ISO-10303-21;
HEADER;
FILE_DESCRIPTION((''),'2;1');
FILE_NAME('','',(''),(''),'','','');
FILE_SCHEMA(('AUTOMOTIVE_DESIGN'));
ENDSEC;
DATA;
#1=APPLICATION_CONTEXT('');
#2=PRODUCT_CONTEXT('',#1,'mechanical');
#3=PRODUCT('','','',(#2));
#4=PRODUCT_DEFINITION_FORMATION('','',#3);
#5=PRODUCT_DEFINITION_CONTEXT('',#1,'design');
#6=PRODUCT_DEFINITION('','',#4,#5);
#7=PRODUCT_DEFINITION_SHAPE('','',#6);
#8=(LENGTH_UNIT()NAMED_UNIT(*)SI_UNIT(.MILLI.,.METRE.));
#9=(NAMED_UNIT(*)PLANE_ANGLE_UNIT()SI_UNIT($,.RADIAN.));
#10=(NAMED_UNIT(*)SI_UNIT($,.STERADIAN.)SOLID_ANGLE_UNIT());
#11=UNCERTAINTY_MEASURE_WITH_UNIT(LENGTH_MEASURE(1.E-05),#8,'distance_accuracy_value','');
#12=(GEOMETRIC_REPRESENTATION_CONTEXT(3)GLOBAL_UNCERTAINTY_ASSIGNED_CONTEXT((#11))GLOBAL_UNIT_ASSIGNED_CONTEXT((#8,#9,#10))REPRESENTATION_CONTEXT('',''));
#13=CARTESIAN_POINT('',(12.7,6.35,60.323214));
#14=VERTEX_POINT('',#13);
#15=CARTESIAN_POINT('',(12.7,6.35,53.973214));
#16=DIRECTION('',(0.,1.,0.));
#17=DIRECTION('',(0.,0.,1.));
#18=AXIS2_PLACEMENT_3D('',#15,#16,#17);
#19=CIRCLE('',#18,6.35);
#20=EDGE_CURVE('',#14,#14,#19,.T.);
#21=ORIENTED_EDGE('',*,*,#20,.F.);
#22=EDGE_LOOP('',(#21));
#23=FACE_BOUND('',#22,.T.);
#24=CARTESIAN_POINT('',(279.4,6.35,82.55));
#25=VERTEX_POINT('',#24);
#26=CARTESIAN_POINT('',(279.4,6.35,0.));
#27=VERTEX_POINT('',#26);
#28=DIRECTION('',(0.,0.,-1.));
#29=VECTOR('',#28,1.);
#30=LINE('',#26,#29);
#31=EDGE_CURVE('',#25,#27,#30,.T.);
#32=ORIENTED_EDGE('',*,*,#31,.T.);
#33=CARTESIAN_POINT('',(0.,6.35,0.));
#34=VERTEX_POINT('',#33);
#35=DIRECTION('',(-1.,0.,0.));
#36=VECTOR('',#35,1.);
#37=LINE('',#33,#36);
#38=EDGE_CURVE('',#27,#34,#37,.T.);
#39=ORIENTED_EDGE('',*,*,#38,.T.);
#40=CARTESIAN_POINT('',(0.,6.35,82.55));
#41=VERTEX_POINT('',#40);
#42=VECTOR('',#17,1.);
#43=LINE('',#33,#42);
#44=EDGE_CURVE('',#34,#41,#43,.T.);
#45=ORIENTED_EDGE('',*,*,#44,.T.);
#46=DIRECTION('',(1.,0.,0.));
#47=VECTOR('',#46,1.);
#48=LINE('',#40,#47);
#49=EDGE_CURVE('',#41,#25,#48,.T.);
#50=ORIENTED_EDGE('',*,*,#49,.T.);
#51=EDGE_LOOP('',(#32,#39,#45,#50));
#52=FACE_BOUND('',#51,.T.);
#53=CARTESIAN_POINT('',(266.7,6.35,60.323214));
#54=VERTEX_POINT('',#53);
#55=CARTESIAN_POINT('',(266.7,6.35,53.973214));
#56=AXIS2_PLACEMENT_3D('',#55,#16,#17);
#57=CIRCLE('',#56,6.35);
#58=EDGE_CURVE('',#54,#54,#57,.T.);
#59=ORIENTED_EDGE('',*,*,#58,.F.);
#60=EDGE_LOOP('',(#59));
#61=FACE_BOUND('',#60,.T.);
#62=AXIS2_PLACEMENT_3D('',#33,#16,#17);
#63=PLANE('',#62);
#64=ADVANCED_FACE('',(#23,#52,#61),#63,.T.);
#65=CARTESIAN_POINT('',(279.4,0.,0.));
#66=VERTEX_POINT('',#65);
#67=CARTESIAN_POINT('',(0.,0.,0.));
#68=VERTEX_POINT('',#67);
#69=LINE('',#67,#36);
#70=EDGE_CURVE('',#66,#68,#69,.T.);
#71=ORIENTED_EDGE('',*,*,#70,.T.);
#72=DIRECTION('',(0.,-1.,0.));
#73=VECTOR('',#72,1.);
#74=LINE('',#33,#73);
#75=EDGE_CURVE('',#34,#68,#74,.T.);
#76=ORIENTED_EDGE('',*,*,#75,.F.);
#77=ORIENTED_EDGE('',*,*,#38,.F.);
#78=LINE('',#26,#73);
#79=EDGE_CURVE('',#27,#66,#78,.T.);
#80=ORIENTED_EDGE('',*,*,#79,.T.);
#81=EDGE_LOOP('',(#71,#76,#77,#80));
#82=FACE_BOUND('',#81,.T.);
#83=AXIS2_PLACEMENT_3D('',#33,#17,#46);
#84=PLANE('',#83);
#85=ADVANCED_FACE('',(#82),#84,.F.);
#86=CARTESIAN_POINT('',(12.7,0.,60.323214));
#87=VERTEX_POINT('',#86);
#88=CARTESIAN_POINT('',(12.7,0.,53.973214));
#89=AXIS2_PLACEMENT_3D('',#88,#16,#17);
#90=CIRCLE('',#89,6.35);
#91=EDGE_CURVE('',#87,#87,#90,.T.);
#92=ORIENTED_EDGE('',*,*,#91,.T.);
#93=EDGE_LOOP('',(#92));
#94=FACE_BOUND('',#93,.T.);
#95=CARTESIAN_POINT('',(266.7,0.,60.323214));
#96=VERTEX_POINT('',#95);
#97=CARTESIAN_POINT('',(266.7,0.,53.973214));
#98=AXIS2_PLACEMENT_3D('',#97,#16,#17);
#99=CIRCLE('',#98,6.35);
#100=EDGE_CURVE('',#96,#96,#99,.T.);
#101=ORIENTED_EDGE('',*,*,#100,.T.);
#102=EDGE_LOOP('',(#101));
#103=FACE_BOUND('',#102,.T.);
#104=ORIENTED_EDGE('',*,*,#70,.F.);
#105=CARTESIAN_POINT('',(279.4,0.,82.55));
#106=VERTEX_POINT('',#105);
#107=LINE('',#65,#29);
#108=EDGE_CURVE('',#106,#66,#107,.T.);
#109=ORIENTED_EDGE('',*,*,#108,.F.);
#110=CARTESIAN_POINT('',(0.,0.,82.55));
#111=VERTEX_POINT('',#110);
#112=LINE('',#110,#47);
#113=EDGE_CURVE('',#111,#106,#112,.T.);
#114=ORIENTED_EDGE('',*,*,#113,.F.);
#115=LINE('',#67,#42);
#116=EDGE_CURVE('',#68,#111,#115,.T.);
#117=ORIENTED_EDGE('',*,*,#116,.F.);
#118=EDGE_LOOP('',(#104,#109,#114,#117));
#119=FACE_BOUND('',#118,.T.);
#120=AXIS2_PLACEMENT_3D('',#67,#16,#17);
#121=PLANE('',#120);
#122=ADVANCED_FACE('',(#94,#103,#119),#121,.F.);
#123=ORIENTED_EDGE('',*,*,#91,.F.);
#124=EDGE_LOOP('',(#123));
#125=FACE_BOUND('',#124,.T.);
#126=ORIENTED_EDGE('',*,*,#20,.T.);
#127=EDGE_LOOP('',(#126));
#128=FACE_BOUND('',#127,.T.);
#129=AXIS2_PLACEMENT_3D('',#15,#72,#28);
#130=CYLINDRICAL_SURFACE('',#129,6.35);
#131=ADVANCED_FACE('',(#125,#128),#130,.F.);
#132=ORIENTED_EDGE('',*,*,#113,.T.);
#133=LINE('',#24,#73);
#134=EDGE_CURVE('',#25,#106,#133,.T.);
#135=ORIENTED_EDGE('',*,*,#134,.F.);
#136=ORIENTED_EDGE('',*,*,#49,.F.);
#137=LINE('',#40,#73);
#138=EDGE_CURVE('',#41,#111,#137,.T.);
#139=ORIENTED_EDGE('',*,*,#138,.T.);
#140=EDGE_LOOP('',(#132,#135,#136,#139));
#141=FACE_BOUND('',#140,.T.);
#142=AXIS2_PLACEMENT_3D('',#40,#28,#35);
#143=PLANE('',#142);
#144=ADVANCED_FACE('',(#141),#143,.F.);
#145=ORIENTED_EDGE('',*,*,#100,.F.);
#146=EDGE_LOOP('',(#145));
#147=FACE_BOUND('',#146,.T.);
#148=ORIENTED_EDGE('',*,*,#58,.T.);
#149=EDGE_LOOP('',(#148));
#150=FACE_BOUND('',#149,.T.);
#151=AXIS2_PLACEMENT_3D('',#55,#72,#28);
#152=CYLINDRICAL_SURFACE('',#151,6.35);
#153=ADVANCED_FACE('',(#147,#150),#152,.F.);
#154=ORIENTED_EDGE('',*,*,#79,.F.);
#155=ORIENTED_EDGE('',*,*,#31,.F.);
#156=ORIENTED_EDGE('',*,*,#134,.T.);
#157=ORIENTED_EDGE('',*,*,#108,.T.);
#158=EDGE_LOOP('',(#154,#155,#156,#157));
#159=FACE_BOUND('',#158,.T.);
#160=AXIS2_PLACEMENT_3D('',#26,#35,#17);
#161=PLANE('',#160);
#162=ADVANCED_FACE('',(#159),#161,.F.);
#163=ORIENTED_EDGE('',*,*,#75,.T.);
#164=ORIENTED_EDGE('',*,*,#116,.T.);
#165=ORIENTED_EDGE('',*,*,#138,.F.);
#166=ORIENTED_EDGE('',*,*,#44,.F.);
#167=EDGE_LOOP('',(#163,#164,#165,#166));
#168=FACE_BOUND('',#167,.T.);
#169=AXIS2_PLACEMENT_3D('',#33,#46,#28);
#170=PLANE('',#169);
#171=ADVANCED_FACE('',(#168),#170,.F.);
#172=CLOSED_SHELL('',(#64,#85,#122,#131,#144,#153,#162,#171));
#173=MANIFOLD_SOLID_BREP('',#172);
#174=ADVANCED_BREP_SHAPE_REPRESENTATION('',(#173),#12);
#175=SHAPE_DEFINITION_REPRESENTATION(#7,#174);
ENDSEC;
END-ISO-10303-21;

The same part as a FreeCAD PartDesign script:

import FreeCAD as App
import Part
import Sketcher
Q = App.Units.Quantity


def add_polygon(sketch, points):
    """Adds a closed chain of lines whose ends are joined by coincident constraints."""
    first, n = sketch.GeometryCount, len(points)
    for a, b in zip(points, points[1:] + points[:1]):
        sketch.addGeometry(Part.LineSegment(App.Vector(*a, 0), App.Vector(*b, 0)), False)
    for i in range(n):
        sketch.addConstraint(Sketcher.Constraint("Coincident", first + i, 2, first + (i + 1) % n, 1))

doc = App.newDocument("Part")
body = doc.addObject("PartDesign::Body", "Body")

# Sketch on XZ plane
sketch1 = body.newObject("Sketcher::SketchObject", "Sketch")
sketch1.AttachmentSupport = (doc.getObject("XZ_Plane"), [""])
sketch1.MapMode = "FlatFace"
add_polygon(sketch1, [(0, 0), (0, 83), (279, 83), (279, 0)])  # lines 0-3
sketch1.addGeometry(Part.Circle(App.Vector(13, 54, 0), App.Vector(0, 0, 1), 6), False)  # 4
sketch1.addGeometry(Part.Circle(App.Vector(267, 54, 0), App.Vector(0, 0, 1), 6), False)  # 5
sketch1.addConstraint([
    Sketcher.Constraint("Vertical", 0),
    Sketcher.Constraint("Horizontal", 1),
    Sketcher.Constraint("Vertical", 2),
    Sketcher.Constraint("Horizontal", 3),
    Sketcher.Constraint("Coincident", 3, 2, -1, 1),
    Sketcher.Constraint("Equal", 4, 5),
    Sketcher.Constraint("Horizontal", 4, 3, 5, 3),
    Sketcher.Constraint("Diameter", 4, Q("0.5 in")),
    Sketcher.Constraint("DistanceX", 1, 1, 1, 2, Q("11 in")),
    Sketcher.Constraint("DistanceX", 4, 3, 5, 3, Q("10 in")),
    Sketcher.Constraint("DistanceY", 0, 1, 0, 2, Q("3.25 in")),
    Sketcher.Constraint("DistanceX", -1, 1, 4, 3, Q("0.5 in")),
    Sketcher.Constraint("DistanceY", -1, 1, 4, 3, Q("53.973214 mm")),
])
pad1 = body.newObject("PartDesign::Pad", "Pad")
pad1.Profile = sketch1
pad1.Length = Q("0.25 in")
pad1.Reversed = True

doc.recompute()
